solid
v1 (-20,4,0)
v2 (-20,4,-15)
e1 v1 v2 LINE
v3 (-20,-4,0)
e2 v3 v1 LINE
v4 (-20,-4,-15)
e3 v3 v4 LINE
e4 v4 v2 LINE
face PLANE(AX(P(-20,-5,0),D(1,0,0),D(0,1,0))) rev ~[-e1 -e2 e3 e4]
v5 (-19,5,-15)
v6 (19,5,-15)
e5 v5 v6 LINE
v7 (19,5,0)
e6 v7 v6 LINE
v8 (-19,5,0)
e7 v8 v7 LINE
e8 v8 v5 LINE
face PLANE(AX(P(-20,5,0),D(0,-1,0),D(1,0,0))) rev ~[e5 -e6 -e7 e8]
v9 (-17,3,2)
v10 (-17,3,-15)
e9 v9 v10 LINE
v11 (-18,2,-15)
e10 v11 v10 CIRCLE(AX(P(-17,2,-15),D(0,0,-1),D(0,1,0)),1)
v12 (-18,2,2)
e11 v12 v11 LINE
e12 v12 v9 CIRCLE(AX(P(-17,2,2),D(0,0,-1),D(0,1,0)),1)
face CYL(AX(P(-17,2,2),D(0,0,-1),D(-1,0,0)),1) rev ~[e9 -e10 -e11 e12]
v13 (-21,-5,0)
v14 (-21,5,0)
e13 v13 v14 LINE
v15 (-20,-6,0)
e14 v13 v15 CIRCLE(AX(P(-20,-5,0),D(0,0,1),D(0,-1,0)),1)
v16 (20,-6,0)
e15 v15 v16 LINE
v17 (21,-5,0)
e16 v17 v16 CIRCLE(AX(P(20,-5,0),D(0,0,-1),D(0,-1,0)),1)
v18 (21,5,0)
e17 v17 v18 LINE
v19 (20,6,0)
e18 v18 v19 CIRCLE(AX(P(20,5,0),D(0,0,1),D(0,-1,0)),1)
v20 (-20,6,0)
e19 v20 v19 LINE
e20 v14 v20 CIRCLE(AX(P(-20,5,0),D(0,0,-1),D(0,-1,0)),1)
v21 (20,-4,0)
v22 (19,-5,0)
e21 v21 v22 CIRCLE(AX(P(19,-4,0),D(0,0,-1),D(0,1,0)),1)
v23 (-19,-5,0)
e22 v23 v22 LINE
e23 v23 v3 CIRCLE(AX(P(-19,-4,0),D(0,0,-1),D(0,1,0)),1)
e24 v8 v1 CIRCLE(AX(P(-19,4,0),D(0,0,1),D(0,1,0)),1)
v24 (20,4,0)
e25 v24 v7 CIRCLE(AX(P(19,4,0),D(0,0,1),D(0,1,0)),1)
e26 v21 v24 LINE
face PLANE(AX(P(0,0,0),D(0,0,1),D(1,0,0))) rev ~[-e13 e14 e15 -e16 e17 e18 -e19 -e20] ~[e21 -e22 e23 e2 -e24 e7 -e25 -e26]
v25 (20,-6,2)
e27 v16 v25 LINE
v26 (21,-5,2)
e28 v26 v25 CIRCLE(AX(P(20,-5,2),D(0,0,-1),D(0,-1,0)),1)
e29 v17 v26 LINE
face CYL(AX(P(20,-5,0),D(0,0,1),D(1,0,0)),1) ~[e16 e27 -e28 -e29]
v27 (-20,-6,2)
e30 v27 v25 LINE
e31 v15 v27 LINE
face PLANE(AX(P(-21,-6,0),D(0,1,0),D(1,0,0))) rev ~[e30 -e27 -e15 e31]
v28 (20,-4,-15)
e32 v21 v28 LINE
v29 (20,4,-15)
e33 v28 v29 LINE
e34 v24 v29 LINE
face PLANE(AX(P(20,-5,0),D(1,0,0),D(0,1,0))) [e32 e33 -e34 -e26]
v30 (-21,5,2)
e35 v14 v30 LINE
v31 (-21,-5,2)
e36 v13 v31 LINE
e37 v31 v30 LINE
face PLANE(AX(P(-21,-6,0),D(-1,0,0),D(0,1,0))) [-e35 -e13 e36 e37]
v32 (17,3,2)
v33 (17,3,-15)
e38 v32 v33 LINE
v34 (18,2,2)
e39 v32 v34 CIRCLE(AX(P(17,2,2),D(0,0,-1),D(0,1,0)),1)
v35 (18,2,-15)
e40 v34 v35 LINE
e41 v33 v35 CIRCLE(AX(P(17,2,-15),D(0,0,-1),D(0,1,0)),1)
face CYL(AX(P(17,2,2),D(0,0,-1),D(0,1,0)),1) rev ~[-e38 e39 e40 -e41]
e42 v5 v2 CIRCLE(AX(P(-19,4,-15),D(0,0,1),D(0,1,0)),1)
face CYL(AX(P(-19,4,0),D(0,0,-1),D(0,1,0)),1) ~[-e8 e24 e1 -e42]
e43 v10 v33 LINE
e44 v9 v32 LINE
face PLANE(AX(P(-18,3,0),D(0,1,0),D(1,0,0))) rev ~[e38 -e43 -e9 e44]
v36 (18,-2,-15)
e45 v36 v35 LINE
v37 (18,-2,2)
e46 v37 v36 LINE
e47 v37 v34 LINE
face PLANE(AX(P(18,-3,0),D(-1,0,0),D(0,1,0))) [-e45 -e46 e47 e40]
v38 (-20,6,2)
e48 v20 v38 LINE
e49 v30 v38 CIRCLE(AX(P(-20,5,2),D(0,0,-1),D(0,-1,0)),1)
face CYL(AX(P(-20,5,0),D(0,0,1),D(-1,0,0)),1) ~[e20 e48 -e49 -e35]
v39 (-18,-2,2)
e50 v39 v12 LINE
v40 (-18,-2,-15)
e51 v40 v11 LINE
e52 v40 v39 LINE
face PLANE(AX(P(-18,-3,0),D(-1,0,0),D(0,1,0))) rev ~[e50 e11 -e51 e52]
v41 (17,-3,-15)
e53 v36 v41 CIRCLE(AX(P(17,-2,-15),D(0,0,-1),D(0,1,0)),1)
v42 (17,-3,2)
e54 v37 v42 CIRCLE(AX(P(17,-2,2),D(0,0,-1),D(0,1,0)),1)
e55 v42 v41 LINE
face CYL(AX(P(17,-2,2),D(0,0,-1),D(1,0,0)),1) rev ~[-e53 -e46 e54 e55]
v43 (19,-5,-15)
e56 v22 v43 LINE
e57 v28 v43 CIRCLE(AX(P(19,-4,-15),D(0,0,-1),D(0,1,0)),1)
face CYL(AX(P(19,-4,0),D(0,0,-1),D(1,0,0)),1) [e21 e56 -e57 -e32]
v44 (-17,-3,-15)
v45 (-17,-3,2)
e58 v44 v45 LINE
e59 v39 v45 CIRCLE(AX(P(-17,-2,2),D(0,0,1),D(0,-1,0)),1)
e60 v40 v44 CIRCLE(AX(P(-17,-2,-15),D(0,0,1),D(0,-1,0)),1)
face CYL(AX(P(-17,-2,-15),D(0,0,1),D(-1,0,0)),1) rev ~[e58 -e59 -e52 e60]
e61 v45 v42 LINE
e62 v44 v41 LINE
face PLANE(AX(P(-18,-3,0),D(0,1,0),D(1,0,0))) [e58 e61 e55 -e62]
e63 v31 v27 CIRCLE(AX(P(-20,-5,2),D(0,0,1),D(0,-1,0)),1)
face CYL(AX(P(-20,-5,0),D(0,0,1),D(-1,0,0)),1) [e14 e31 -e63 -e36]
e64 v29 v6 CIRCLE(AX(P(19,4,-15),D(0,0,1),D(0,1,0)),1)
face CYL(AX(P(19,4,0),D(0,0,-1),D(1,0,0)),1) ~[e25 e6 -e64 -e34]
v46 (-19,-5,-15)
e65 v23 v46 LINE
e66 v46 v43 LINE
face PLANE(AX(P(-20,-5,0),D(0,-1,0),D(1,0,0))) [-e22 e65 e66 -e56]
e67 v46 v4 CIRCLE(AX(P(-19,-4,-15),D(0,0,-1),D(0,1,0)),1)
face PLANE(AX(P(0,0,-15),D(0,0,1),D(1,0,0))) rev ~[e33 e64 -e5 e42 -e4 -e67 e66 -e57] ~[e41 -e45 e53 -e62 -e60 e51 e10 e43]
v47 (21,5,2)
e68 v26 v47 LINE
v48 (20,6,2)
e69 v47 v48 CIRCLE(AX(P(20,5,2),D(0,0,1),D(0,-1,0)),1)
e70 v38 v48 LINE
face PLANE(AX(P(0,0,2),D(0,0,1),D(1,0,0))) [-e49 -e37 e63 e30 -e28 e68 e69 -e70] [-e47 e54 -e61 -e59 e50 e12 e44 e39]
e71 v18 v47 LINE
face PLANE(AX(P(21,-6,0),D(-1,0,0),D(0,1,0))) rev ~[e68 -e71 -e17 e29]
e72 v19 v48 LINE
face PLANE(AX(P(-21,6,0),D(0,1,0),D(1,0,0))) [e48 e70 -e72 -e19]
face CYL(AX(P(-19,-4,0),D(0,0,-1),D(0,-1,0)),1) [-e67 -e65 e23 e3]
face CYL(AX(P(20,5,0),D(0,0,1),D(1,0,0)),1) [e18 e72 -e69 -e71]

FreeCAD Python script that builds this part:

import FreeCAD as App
import Part
import Sketcher

V = App.Vector


def edges_at(feature, points):
    """Names of the edges that pass closest to the given points."""
    edges = feature.Shape.Edges
    near = lambda p: min(range(len(edges)), key=lambda i: edges[i].distToShape(Part.Vertex(*p))[0])
    return sorted({f"Edge{near(p) + 1}" for p in points})


def add_polygon(sketch, points):
    """Adds a closed chain of lines whose ends are joined by coincident constraints."""
    first, n = sketch.GeometryCount, len(points)
    for a, b in zip(points, points[1:] + points[:1]):
        sketch.addGeometry(Part.LineSegment(App.Vector(*a, 0), App.Vector(*b, 0)), False)
    for i in range(n):
        sketch.addConstraint(Sketcher.Constraint("Coincident", first + i, 2, first + (i + 1) % n, 1))

doc = App.newDocument("Part")
params = doc.addObject("Spreadsheet::Sheet", "Params")
for row, (alias, value) in enumerate([
    ("sketch1_width", "40 mm"),
    ("sketch1_width2", "36 mm"),
    ("sketch1_height", "10 mm"),
    ("sketch1_height2", "6 mm"),
    ("pad1_length", "15 mm"),
    ("sketch2_width", "42 mm"),
    ("sketch2_width2", "36 mm"),
    ("sketch2_height", "12 mm"),
    ("sketch2_height2", "6 mm"),
    ("pad2_length", "2 mm"),
    ("fillet_radius", "1 mm"),
], start=1):
    params.set(f"A{row}", alias)
    params.set(f"B{row}", "=" + value)
    params.setAlias(f"B{row}", alias)

body = doc.addObject("PartDesign::Body", "Body")

# Sketch on XY plane
sketch1 = doc.addObject("Sketcher::SketchObject", "Sketch")
body.addObject(sketch1)
sketch1.AttachmentSupport = (doc.XY_Plane, [""])
sketch1.MapMode = "FlatFace"
add_polygon(sketch1, [(-20, 5), (-20, -5), (20, -5), (20, 5)])  # lines 0-3
add_polygon(sketch1, [(18, -3), (-18, -3), (-18, 3), (18, 3)])  # lines 4-7
sketch1.addConstraint([
    Sketcher.Constraint("Vertical", 0),
    Sketcher.Constraint("Horizontal", 1),
    Sketcher.Constraint("Vertical", 2),
    Sketcher.Constraint("Horizontal", 3),
    Sketcher.Constraint("Horizontal", 4),
    Sketcher.Constraint("Vertical", 5),
    Sketcher.Constraint("Horizontal", 6),
    Sketcher.Constraint("Vertical", 7),
    Sketcher.Constraint("Symmetric", 0, 2, 2, 2, -1, 1),
    Sketcher.Constraint("Symmetric", 4, 2, 6, 2, -1, 1),
    Sketcher.Constraint("DistanceX", 1, 1, 1, 2, 40.0),
    Sketcher.Constraint("DistanceX", 4, 2, 4, 1, 36.0),
    Sketcher.Constraint("DistanceY", 0, 2, 0, 1, 10.0),
    Sketcher.Constraint("DistanceY", 5, 1, 5, 2, 6.0),
])
sketch1.setExpression("Constraints[18]", "Params.sketch1_width")
sketch1.setExpression("Constraints[19]", "Params.sketch1_width2")
sketch1.setExpression("Constraints[20]", "Params.sketch1_height")
sketch1.setExpression("Constraints[21]", "Params.sketch1_height2")
pad1 = doc.addObject("PartDesign::Pad", "Pad")
body.addObject(pad1)
pad1.Profile = sketch1
pad1.setExpression("Length", "Params.pad1_length")
pad1.Reversed = True

# Sketch on XY plane
sketch2 = doc.addObject("Sketcher::SketchObject", "Sketch001")
body.addObject(sketch2)
sketch2.AttachmentSupport = (doc.XY_Plane, [""])
sketch2.MapMode = "FlatFace"
add_polygon(sketch2, [(-21, 6), (-21, -6), (21, -6), (21, 6)])  # lines 0-3
add_polygon(sketch2, [(18, -3), (-18, -3), (-18, 3), (18, 3)])  # lines 4-7
sketch2.addConstraint([
    Sketcher.Constraint("Vertical", 0),
    Sketcher.Constraint("Horizontal", 1),
    Sketcher.Constraint("Vertical", 2),
    Sketcher.Constraint("Horizontal", 3),
    Sketcher.Constraint("Horizontal", 4),
    Sketcher.Constraint("Vertical", 5),
    Sketcher.Constraint("Horizontal", 6),
    Sketcher.Constraint("Vertical", 7),
    Sketcher.Constraint("Symmetric", 0, 2, 2, 2, -1, 1),
    Sketcher.Constraint("Symmetric", 4, 2, 6, 2, -1, 1),
    Sketcher.Constraint("DistanceX", 1, 1, 1, 2, 42.0),
    Sketcher.Constraint("DistanceX", 4, 2, 4, 1, 36.0),
    Sketcher.Constraint("DistanceY", 0, 2, 0, 1, 12.0),
    Sketcher.Constraint("DistanceY", 5, 1, 5, 2, 6.0),
])
sketch2.setExpression("Constraints[18]", "Params.sketch2_width")
sketch2.setExpression("Constraints[19]", "Params.sketch2_width2")
sketch2.setExpression("Constraints[20]", "Params.sketch2_height")
sketch2.setExpression("Constraints[21]", "Params.sketch2_height2")
pad2 = doc.addObject("PartDesign::Pad", "Pad001")
body.addObject(pad2)
pad2.Profile = sketch2
pad2.setExpression("Length", "Params.pad2_length")
doc.recompute()

fillet = doc.addObject("PartDesign::Fillet", "Fillet")
body.addObject(fillet)
fillet.Base = (pad2, edges_at(pad2, [
    (21, 6, 1),
    (21, -6, 1),
    (-21, 6, 1),
    (-21, -6, 1),
    (20, 5, -7.5),
    (20, -5, -7.5),
    (-20, -5, -7.5),
    (-20, 5, -7.5),
    (18, 3, -6.5),
    (-18, 3, -6.5),
    (-18, -3, -6.5),
    (18, -3, -6.5),
]))
fillet.setExpression("Radius", "Params.fillet_radius")

doc.recompute()
